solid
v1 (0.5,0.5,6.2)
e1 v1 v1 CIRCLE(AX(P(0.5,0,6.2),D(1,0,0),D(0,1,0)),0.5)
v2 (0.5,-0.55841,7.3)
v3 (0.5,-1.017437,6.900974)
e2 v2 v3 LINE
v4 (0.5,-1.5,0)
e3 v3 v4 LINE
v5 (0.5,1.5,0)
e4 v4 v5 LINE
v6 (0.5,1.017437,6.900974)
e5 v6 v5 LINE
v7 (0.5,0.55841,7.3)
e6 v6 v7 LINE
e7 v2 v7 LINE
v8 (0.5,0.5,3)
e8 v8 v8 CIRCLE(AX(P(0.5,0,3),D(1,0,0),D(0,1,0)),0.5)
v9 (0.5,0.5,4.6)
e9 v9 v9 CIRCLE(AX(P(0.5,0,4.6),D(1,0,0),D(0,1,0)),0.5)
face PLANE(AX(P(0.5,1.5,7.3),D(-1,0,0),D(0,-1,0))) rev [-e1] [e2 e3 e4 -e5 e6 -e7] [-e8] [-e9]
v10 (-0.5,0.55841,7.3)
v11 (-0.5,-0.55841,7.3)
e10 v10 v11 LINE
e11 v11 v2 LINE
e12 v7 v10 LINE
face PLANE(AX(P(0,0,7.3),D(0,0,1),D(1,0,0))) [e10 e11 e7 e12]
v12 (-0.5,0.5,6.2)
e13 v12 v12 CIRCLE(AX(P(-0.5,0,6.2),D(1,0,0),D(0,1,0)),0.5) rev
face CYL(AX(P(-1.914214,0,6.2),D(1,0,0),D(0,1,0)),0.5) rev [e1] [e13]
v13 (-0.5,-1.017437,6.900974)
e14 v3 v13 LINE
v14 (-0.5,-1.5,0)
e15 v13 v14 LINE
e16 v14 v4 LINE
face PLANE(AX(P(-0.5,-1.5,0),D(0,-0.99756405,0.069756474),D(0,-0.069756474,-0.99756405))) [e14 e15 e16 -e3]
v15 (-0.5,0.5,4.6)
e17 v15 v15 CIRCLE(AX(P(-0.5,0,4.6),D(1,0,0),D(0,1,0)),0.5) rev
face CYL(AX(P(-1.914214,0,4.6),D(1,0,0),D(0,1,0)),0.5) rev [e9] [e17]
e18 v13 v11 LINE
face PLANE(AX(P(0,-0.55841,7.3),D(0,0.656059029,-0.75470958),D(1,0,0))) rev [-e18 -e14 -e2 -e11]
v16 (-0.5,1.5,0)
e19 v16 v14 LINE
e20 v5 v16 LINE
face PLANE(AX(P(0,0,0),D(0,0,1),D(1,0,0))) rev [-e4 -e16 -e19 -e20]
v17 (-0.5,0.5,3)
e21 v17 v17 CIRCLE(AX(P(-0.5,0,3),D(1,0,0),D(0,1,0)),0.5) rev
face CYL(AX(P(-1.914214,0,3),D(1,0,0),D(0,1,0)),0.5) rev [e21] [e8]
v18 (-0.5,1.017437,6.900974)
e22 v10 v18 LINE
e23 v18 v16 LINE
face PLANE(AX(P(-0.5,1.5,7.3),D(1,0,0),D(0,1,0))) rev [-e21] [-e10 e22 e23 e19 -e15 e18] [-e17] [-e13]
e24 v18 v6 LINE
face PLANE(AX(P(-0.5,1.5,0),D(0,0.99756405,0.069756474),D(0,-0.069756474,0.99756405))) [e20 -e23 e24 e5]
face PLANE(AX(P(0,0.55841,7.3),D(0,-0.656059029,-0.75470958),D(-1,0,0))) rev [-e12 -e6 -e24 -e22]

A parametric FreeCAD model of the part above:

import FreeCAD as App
import Part
import Sketcher

V = App.Vector


def edges_at(feature, points):
    """Names of the edges that pass closest to the given points."""
    edges = feature.Shape.Edges
    near = lambda p: min(range(len(edges)), key=lambda i: edges[i].distToShape(Part.Vertex(*p))[0])
    return sorted({f"Edge{near(p) + 1}" for p in points})


def faces_at(feature, points):
    """Names of the faces that lie closest to the given points."""
    faces = feature.Shape.Faces
    near = lambda p: min(range(len(faces)), key=lambda i: faces[i].distToShape(Part.Vertex(*p))[0])
    return sorted({f"Face{near(p) + 1}" for p in points})

doc = App.newDocument("Part")
body = doc.addObject("PartDesign::Body", "Body")

# Sketch on XY plane
sketch1 = doc.addObject("Sketcher::SketchObject", "Sketch")
body.addObject(sketch1)
sketch1.AttachmentSupport = (doc.XY_Plane, [""])
sketch1.MapMode = "FlatFace"
sketch1.addGeometry([
    Part.LineSegment(V(-0.5, 1.5, 0), V(-0.5, -1.5, 0)),
    Part.LineSegment(V(-0.5, -1.5, 0), V(0.5, -1.5, 0)),
    Part.LineSegment(V(0.5, -1.5, 0), V(0.5, 1.5, 0)),
    Part.LineSegment(V(0.5, 1.5, 0), V(-0.5, 1.5, 0)),
], False)
sketch1.addConstraint([
    Sketcher.Constraint("Coincident", 0, 2, 1, 1),
    Sketcher.Constraint("Coincident", 1, 2, 2, 1),
    Sketcher.Constraint("Coincident", 2, 2, 3, 1),
    Sketcher.Constraint("Coincident", 3, 2, 0, 1),
    Sketcher.Constraint("Vertical", 0),
    Sketcher.Constraint("Horizontal", 1),
    Sketcher.Constraint("Vertical", 2),
    Sketcher.Constraint("Horizontal", 3),
    Sketcher.Constraint("Symmetric", 0, 2, 2, 2, -1, 1),
    Sketcher.Constraint("DistanceX", 1, 1, 1, 2, 1.0),
    Sketcher.Constraint("DistanceY", 0, 2, 0, 1, 3.0),
])
pad1 = doc.addObject("PartDesign::Pad", "Pad")
body.addObject(pad1)
pad1.Profile = sketch1
pad1.Length = 7.3
doc.recompute()

draft = doc.addObject("PartDesign::Draft", "Draft")
body.addObject(draft)
draft.Base = (pad1, faces_at(pad1, [(0, 1.5, 3.65), (0, -1.5, 3.65)]))
draft.NeutralPlane = (doc.XY_Plane, [""])
draft.Angle = 4
draft.Reversed = False
doc.recompute()

chamfer = doc.addObject("PartDesign::Chamfer", "Chamfer")
body.addObject(chamfer)
chamfer.Base = (draft, edges_at(draft, [(0, -0.99, 7.3)]))
chamfer.ChamferType = "Two distances"
chamfer.Size = 0.4
chamfer.Size2 = 0.431124
doc.recompute()

chamfer2 = doc.addObject("PartDesign::Chamfer", "Chamfer001")
body.addObject(chamfer2)
chamfer2.Base = (chamfer, edges_at(chamfer, [(0, 0.99, 7.3)]))
chamfer2.ChamferType = "Two distances"
chamfer2.Size = 0.431124
chamfer2.Size2 = 0.4

# Sketch on YZ plane
sketch2 = doc.addObject("Sketcher::SketchObject", "Sketch001")
body.addObject(sketch2)
sketch2.AttachmentSupport = (doc.YZ_Plane, [""])
sketch2.MapMode = "FlatFace"
sketch2.AttachmentOffset = App.Placement(V(0, 0, 0.5), App.Rotation())
sketch2.addGeometry([
    Part.Circle(V(0, 6.2, 0), V(0, 0, 1), 0.5),
    Part.Circle(V(0, 4.6, 0), V(0, 0, 1), 0.5),
    Part.Circle(V(0, 3, 0), V(0, 0, 1), 0.5),
], False)
sketch2.addConstraint([
    Sketcher.Constraint("Equal", 0, 1),
    Sketcher.Constraint("Equal", 1, 2),
    Sketcher.Constraint("PointOnObject", 0, 3, -2),
    Sketcher.Constraint("PointOnObject", 1, 3, -2),
    Sketcher.Constraint("PointOnObject", 2, 3, -2),
    Sketcher.Constraint("Diameter", 0, 1.0),
    Sketcher.Constraint("DistanceY", -1, 1, 2, 3, 3.0),
    Sketcher.Constraint("DistanceY", -1, 1, 0, 3, 6.2),
    Sketcher.Constraint("DistanceY", -1, 1, 1, 3, 4.6),
])
pocket1 = doc.addObject("PartDesign::Pocket", "Pocket")
body.addObject(pocket1)
pocket1.Profile = sketch2
pocket1.Length = 1

doc.recompute()
